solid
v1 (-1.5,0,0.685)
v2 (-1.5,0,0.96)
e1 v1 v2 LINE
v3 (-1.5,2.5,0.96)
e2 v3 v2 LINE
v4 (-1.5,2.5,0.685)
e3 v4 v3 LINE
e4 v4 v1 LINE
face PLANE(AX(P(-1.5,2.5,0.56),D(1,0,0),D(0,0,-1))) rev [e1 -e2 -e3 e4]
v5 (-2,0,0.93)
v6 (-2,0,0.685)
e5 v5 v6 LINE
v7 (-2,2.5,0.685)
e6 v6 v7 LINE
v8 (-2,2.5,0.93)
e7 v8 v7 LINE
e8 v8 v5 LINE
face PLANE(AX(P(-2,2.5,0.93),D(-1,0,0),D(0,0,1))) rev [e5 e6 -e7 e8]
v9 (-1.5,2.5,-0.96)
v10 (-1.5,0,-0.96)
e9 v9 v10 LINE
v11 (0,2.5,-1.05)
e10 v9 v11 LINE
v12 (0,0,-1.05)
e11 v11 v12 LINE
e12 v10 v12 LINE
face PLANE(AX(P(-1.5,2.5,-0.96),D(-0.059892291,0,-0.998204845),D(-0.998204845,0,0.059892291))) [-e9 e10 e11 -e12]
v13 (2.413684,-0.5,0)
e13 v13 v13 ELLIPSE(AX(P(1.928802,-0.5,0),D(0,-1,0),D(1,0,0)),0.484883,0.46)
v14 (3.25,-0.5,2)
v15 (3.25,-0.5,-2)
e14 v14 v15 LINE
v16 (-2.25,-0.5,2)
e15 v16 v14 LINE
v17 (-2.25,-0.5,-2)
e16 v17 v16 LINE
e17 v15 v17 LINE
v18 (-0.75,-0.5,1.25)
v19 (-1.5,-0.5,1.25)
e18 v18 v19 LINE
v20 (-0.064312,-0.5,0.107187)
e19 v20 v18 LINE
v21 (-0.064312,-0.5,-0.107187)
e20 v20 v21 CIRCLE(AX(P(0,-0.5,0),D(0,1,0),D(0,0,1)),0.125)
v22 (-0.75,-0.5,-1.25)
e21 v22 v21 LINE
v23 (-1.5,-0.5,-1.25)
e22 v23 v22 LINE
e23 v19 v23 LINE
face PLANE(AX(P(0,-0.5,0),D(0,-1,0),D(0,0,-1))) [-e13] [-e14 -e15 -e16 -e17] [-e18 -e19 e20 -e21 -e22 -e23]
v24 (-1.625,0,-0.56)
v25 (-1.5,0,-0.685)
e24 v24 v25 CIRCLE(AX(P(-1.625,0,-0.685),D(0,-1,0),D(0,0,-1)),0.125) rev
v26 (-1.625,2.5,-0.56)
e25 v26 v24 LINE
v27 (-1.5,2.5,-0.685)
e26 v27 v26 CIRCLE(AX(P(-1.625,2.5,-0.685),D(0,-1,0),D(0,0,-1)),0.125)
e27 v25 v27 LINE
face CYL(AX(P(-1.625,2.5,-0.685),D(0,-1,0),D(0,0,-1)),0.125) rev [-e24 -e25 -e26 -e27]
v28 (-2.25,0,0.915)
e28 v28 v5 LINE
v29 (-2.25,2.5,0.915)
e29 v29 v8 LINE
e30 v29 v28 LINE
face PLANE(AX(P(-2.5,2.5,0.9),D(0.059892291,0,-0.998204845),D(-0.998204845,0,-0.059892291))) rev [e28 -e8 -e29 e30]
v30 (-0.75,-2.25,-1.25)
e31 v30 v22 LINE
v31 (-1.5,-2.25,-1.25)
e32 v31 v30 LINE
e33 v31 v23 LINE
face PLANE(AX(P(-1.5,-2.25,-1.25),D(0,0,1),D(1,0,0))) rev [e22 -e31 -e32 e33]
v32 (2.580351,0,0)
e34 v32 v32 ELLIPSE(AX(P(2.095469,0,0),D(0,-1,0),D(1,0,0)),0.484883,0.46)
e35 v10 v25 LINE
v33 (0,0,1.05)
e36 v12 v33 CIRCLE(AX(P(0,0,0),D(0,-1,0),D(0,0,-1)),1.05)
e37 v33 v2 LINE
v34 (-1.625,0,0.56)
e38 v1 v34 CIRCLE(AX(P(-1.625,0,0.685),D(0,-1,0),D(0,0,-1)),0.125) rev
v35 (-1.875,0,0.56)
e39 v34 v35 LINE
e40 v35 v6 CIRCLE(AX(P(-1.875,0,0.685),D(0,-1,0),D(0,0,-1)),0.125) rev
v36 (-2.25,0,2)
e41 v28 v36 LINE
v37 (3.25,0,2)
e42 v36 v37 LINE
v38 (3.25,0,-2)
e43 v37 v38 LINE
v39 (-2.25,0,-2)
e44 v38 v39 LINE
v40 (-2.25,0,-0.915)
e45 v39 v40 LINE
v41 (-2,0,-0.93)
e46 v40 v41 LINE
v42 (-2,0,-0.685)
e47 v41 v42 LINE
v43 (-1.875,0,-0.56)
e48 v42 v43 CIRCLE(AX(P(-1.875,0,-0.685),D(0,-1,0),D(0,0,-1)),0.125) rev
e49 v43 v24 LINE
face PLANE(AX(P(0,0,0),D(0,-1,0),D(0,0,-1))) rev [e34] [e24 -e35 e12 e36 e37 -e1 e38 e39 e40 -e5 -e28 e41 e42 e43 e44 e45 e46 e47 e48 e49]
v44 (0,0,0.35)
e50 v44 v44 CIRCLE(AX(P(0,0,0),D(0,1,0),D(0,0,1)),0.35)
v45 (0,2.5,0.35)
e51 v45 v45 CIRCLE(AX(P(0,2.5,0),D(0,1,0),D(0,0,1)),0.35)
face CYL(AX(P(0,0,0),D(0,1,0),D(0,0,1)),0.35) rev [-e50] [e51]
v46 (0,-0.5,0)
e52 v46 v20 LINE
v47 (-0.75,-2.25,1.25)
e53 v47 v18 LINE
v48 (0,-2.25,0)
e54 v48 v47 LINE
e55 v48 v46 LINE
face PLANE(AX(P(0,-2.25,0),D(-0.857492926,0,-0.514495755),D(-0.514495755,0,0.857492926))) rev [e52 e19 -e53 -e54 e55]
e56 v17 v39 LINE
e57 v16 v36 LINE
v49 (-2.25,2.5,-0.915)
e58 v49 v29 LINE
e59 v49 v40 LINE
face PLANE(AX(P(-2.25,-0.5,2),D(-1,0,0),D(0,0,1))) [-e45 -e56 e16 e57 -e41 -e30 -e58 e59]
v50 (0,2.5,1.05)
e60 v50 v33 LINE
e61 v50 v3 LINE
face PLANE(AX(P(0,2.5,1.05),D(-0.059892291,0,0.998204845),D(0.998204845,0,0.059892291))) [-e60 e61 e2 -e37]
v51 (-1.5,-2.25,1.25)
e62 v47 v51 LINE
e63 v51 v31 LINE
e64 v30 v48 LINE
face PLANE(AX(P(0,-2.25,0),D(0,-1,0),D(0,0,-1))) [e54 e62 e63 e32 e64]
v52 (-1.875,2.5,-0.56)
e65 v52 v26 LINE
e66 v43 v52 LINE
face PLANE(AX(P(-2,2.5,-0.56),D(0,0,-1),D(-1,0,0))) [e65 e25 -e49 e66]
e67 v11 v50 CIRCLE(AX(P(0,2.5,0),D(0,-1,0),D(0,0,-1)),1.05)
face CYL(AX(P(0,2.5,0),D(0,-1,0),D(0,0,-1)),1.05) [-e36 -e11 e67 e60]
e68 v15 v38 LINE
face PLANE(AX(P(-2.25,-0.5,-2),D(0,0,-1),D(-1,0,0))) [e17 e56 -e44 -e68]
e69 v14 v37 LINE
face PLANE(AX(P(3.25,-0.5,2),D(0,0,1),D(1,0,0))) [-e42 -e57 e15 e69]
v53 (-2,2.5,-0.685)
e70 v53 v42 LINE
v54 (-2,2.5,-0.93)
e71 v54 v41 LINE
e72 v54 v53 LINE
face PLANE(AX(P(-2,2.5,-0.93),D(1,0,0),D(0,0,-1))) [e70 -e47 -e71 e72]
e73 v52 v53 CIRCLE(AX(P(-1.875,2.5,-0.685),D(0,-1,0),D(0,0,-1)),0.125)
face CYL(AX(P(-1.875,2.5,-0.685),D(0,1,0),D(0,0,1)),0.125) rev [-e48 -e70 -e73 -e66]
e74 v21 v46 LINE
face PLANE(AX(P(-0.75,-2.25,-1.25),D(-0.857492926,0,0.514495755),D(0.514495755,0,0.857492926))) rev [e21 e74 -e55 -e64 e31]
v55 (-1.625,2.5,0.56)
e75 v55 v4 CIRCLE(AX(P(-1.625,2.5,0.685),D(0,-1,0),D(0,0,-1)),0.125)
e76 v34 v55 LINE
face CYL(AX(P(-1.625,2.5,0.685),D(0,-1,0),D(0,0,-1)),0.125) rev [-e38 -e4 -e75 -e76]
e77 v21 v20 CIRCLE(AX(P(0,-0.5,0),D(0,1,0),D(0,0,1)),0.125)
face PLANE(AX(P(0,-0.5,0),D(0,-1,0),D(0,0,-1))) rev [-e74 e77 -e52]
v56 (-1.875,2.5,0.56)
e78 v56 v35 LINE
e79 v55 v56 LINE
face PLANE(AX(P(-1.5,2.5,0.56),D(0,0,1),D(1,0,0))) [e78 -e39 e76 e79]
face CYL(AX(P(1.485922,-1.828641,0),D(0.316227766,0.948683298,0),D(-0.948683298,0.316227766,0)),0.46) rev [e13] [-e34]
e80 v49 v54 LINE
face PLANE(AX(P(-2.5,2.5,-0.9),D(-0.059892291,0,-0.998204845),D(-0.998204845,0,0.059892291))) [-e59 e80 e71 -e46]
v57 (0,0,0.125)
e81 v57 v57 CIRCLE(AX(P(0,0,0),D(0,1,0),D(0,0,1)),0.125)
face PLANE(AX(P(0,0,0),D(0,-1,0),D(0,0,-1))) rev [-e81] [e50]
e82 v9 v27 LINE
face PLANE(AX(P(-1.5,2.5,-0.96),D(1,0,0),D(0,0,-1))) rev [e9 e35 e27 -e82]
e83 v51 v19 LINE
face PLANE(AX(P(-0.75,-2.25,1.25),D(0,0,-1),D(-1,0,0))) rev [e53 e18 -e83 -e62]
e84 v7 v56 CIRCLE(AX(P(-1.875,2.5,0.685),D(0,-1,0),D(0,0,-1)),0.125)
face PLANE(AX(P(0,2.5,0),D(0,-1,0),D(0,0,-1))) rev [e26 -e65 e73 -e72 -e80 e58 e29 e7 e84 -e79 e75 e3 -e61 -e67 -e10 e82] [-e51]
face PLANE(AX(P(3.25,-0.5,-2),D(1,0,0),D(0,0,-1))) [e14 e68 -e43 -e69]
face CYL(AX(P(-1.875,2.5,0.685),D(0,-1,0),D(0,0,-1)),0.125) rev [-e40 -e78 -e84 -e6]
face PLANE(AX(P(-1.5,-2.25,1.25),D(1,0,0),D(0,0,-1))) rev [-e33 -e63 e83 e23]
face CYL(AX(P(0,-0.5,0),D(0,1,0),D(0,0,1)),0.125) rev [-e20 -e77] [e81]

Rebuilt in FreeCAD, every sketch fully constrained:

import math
import FreeCAD as App
import Part
import Sketcher
from FreeCAD import Vector


def edges_at(feature, points):
    """Names of the edges that pass closest to the given points."""
    edges = feature.Shape.Edges
    near = lambda p: min(range(len(edges)), key=lambda i: edges[i].distToShape(Part.Vertex(*p))[0])
    return sorted({f"Edge{near(p) + 1}" for p in points})

doc = App.newDocument("Part")
body = doc.addObject("PartDesign::Body", "Body")

# Sketch on XZ plane
sketch1 = doc.addObject("Sketcher::SketchObject", "Sketch")
body.addObject(sketch1)
sketch1.AttachmentSupport = (doc.XZ_Plane, [""])
sketch1.MapMode = "FlatFace"
sketch1.addGeometry([
    Part.LineSegment(Vector(-2, -0.93, 0), Vector(-2.5, -0.9, 0)),  # 0
    Part.LineSegment(Vector(-2.5, -0.9, 0), Vector(-2.5, 0.9, 0)),  # 1
    Part.LineSegment(Vector(-2.5, 0.9, 0), Vector(-2, 0.93, 0)),  # 2
    Part.LineSegment(Vector(-2, 0.93, 0), Vector(-2, 0.56, 0)),  # 3
    Part.LineSegment(Vector(-2, 0.56, 0), Vector(-1.5, 0.56, 0)),  # 4
    Part.LineSegment(Vector(-1.5, 0.56, 0), Vector(-1.5, 0.96, 0)),  # 5
    Part.LineSegment(Vector(-1.5, 0.96, 0), Vector(0, 1.05, 0)),  # 6
    Part.ArcOfCircle(Part.Circle(Vector(0, 0, 0), Vector(0, 0, 1), 1.05), math.radians(-90), math.radians(90)),  # 7
    Part.LineSegment(Vector(0, -1.05, 0), Vector(-1.5, -0.96, 0)),  # 8
    Part.LineSegment(Vector(-1.5, -0.96, 0), Vector(-1.5, -0.56, 0)),  # 9
    Part.LineSegment(Vector(-1.5, -0.56, 0), Vector(-2, -0.56, 0)),  # 10
    Part.LineSegment(Vector(-2, -0.56, 0), Vector(-2, -0.93, 0)),  # 11
], False)
sketch1.addConstraint([
    Sketcher.Constraint("Coincident", 0, 2, 1, 1),
    Sketcher.Constraint("Coincident", 1, 2, 2, 1),
    Sketcher.Constraint("Coincident", 2, 2, 3, 1),
    Sketcher.Constraint("Coincident", 3, 2, 4, 1),
    Sketcher.Constraint("Coincident", 4, 2, 5, 1),
    Sketcher.Constraint("Coincident", 5, 2, 6, 1),
    Sketcher.Constraint("Coincident", 6, 2, 7, 2),
    Sketcher.Constraint("Coincident", 7, 1, 8, 1),
    Sketcher.Constraint("Coincident", 8, 2, 9, 1),
    Sketcher.Constraint("Coincident", 9, 2, 10, 1),
    Sketcher.Constraint("Coincident", 10, 2, 11, 1),
    Sketcher.Constraint("Coincident", 11, 2, 0, 1),
    Sketcher.Constraint("Vertical", 1),
    Sketcher.Constraint("Vertical", 3),
    Sketcher.Constraint("Horizontal", 4),
    Sketcher.Constraint("Vertical", 5),
    Sketcher.Constraint("Vertical", 9),
    Sketcher.Constraint("Horizontal", 10),
    Sketcher.Constraint("Vertical", 11),
    Sketcher.Constraint("Coincident", 7, 3, -1, 1),
    Sketcher.Constraint("Symmetric", 5, 2, 8, 2, -1),
    Sketcher.Constraint("Symmetric", 3, 2, 10, 2, -1),
    Sketcher.Constraint("PointOnObject", 6, 2, -2),
    Sketcher.Constraint("PointOnObject", 7, 1, -2),
    Sketcher.Constraint("Parallel", 2, 6),
    Sketcher.Constraint("Parallel", 0, 8),
    Sketcher.Constraint("Equal", 3, 11),
    Sketcher.Constraint("Radius", 7, 1.05),
    Sketcher.Constraint("DistanceX", 4, 1, 4, 2, 0.5),
    Sketcher.Constraint("DistanceY", 1, 1, 1, 2, 1.8),
    Sketcher.Constraint("DistanceY", 5, 1, 5, 2, 0.4),
    Sketcher.Constraint("DistanceX", 2, 2, -1, 1, 2.0),
    Sketcher.Constraint("DistanceX", 1, 2, 4, 2, 1.0),
    Sketcher.Constraint("DistanceY", 3, 2, 3, 1, 0.37),
])
pad1 = doc.addObject("PartDesign::Pad", "Pad")
body.addObject(pad1)
pad1.Profile = sketch1
pad1.Length = 2.5
pad1.Reversed = True

# Sketch on XZ plane
sketch2 = doc.addObject("Sketcher::SketchObject", "Sketch001")
body.addObject(sketch2)
sketch2.AttachmentSupport = (doc.XZ_Plane, [""])
sketch2.MapMode = "FlatFace"
sketch2.AttachmentOffset = App.Placement(Vector(0, 0, -2.5), App.Rotation())
sketch2.addGeometry(Part.Circle(Vector(0, 0, 0), Vector(0, 0, 1), 0.35), False)
sketch2.addConstraint([
    Sketcher.Constraint("Coincident", 0, 3, -1, 1),
    Sketcher.Constraint("Diameter", 0, 0.7),
])
pocket1 = doc.addObject("PartDesign::Pocket", "Pocket")
body.addObject(pocket1)
pocket1.Profile = sketch2
pocket1.Type = "ThroughAll"
pocket1.Reversed = True
doc.recompute()

fillet = doc.addObject("PartDesign::Fillet", "Fillet")
body.addObject(fillet)
fillet.Base = (pocket1, edges_at(pocket1, [
    (-2, 1.25, -0.56),
    (-1.5, 1.25, -0.56),
    (-1.5, 1.25, 0.56),
    (-2, 1.25, 0.56),
]))
fillet.Radius = 0.125

# Sketch on XZ plane
sketch3 = doc.addObject("Sketcher::SketchObject", "Sketch002")
body.addObject(sketch3)
sketch3.AttachmentSupport = (doc.XZ_Plane, [""])
sketch3.MapMode = "FlatFace"
sketch3.addGeometry([
    Part.LineSegment(Vector(-2.25, 2, 0), Vector(3.25, 2, 0)),  # 0
    Part.LineSegment(Vector(3.25, 2, 0), Vector(3.25, -2, 0)),  # 1
    Part.LineSegment(Vector(3.25, -2, 0), Vector(-2.25, -2, 0)),  # 2
    Part.LineSegment(Vector(-2.25, -2, 0), Vector(-2.25, 2, 0)),  # 3
    Part.Circle(Vector(0, 0, 0), Vector(0, 0, 1), 0.12),  # 4
], False)
sketch3.addConstraint([
    Sketcher.Constraint("Coincident", 0, 2, 1, 1),
    Sketcher.Constraint("Coincident", 1, 2, 2, 1),
    Sketcher.Constraint("Coincident", 2, 2, 3, 1),
    Sketcher.Constraint("Coincident", 3, 2, 0, 1),
    Sketcher.Constraint("Horizontal", 0),
    Sketcher.Constraint("Vertical", 1),
    Sketcher.Constraint("Horizontal", 2),
    Sketcher.Constraint("Vertical", 3),
    Sketcher.Constraint("Coincident", 4, 3, -1, 1),
    Sketcher.Constraint("Diameter", 4, 0.25),
    Sketcher.Constraint("DistanceY", 1, 2, 1, 1, 4.0),
    Sketcher.Constraint("DistanceX", 0, 1, 0, 2, 5.5),
    Sketcher.Constraint("DistanceY", -1, 1, 0, 2, 2.0),
    Sketcher.Constraint("DistanceX", -1, 1, 0, 2, 3.25),
])
pad2 = doc.addObject("PartDesign::Pad", "Pad001")
body.addObject(pad2)
pad2.Profile = sketch3
pad2.Length = 0.5

# Sketch on an angled plane
sketch4 = doc.addObject("Sketcher::SketchObject", "Sketch003")
body.addObject(sketch4)
sketch4.Placement = App.Placement(Vector(0.7, 2.1, 0), App.Rotation(Vector(0.948683298, -0.316227766, 0), Vector(0, 0, -1), Vector(0.316227766, 0.948683298, 0), "ZXY"))
sketch4.addGeometry(Part.Circle(Vector(1.99, 0, 0), Vector(0, 0, 1), 0.46), False)
sketch4.addConstraint([
    Sketcher.Constraint("PointOnObject", 0, 3, -1),
    Sketcher.Constraint("Diameter", 0, 0.92),
    Sketcher.Constraint("DistanceX", -1, 1, 0, 3, 1.987936),
])
pocket2 = doc.addObject("PartDesign::Pocket", "Pocket001")
body.addObject(pocket2)
pocket2.Profile = sketch4
pocket2.Type = "ThroughAll"

# Sketch on XZ plane
sketch5 = doc.addObject("Sketcher::SketchObject", "Sketch004")
body.addObject(sketch5)
sketch5.AttachmentSupport = (doc.XZ_Plane, [""])
sketch5.MapMode = "FlatFace"
sketch5.addGeometry([
    Part.LineSegment(Vector(-3.7, 2, 0), Vector(-3.7, -2, 0)),
    Part.LineSegment(Vector(-3.7, -2, 0), Vector(-2.3, -2, 0)),
    Part.LineSegment(Vector(-2.3, -2, 0), Vector(-2.3, 2, 0)),
    Part.LineSegment(Vector(-2.3, 2, 0), Vector(-3.7, 2, 0)),
], False)
sketch5.addConstraint([
    Sketcher.Constraint("Coincident", 0, 2, 1, 1),
    Sketcher.Constraint("Coincident", 1, 2, 2, 1),
    Sketcher.Constraint("Coincident", 2, 2, 3, 1),
    Sketcher.Constraint("Coincident", 3, 2, 0, 1),
    Sketcher.Constraint("Vertical", 0),
    Sketcher.Constraint("Horizontal", 1),
    Sketcher.Constraint("Vertical", 2),
    Sketcher.Constraint("Horizontal", 3),
    Sketcher.Constraint("DistanceY", 0, 2, 0, 1, 4.0),
    Sketcher.Constraint("DistanceY", 0, 2, -1, 1, 2.0),
    Sketcher.Constraint("DistanceX", 1, 2, -1, 1, 2.25),
    Sketcher.Constraint("DistanceX", 1, 1, 1, 2, 1.465032),
])
pocket3 = doc.addObject("PartDesign::Pocket", "Pocket002")
body.addObject(pocket3)
pocket3.Profile = sketch5
pocket3.Type = "ThroughAll"
pocket3.Midplane = True

# Sketch on XZ plane
sketch6 = doc.addObject("Sketcher::SketchObject", "Sketch005")
body.addObject(sketch6)
sketch6.AttachmentSupport = (doc.XZ_Plane, [""])
sketch6.MapMode = "FlatFace"
sketch6.AttachmentOffset = App.Placement(Vector(0, 0, 0.5), App.Rotation())
sketch6.addGeometry([
    Part.LineSegment(Vector(-1.5, 1.2, 0), Vector(-1.5, -1.2, 0)),  # 0
    Part.LineSegment(Vector(-1.5, -1.2, 0), Vector(-0.8, -1.2, 0)),  # 1
    Part.LineSegment(Vector(-0.8, -1.2, 0), Vector(0, 0, 0)),  # 2
    Part.LineSegment(Vector(0, 0, 0), Vector(-0.8, 1.2, 0)),  # 3
    Part.LineSegment(Vector(-0.8, 1.2, 0), Vector(-1.5, 1.2, 0)),  # 4
], False)
sketch6.addConstraint([
    Sketcher.Constraint("Coincident", 0, 2, 1, 1),
    Sketcher.Constraint("Coincident", 1, 2, 2, 1),
    Sketcher.Constraint("Coincident", 2, 2, 3, 1),
    Sketcher.Constraint("Coincident", 3, 2, 4, 1),
    Sketcher.Constraint("Coincident", 4, 2, 0, 1),
    Sketcher.Constraint("Vertical", 0),
    Sketcher.Constraint("Horizontal", 1),
    Sketcher.Constraint("Horizontal", 4),
    Sketcher.Constraint("Coincident", 2, 2, -1, 1),
    Sketcher.Constraint("Symmetric", 1, 2, 3, 2, -1),
    Sketcher.Constraint("DistanceY", 0, 2, 0, 1, 2.5),
    Sketcher.Constraint("DistanceX", 1, 1, 1, 2, 0.75),
    Sketcher.Constraint("DistanceX", 0, 2, -1, 1, 1.5),
])
pad3 = doc.addObject("PartDesign::Pad", "Pad002")
body.addObject(pad3)
pad3.Profile = sketch6
pad3.Length = 1.75

doc.recompute()
